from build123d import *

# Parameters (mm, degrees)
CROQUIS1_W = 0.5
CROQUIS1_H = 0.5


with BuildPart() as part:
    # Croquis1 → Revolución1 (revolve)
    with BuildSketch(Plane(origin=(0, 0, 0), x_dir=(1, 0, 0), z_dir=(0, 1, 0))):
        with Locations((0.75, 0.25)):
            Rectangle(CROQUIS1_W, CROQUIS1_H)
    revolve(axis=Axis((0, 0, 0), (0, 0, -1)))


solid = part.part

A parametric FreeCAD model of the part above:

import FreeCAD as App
import Part
import Sketcher
from FreeCAD import Vector

doc = App.newDocument("Part")
body = doc.addObject("PartDesign::Body", "Body")

sketch1 = body.newObject("Sketcher::SketchObject", "Sketch")
sketch1.AttachmentSupport = (doc.getObject("XZ_Plane"), [""])
sketch1.MapMode = "FlatFace"
sketch1.addGeometry([
    Part.LineSegment(Vector(0.5, -0.5, 0), Vector(0.5, 0, 0)),
    Part.LineSegment(Vector(0.5, 0, 0), Vector(1, 0, 0)),
    Part.LineSegment(Vector(1, 0, 0), Vector(1, -0.5, 0)),
    Part.LineSegment(Vector(1, -0.5, 0), Vector(0.5, -0.5, 0)),
], False)
sketch1.addConstraint([
    Sketcher.Constraint("Coincident", 0, 2, 1, 1),
    Sketcher.Constraint("Coincident", 1, 2, 2, 1),
    Sketcher.Constraint("Coincident", 2, 2, 3, 1),
    Sketcher.Constraint("Coincident", 3, 2, 0, 1),
    Sketcher.Constraint("Vertical", 0),
    Sketcher.Constraint("Horizontal", 1),
    Sketcher.Constraint("Vertical", 2),
    Sketcher.Constraint("Horizontal", 3),
    Sketcher.Constraint("PointOnObject", 0, 2, -1),
    Sketcher.Constraint("Equal", 3, 0),
    Sketcher.Constraint("DistanceX", 1, 1, 1, 2, 0.5),
    Sketcher.Constraint("DistanceX", -1, 1, 1, 2, 1.0),
])
revolution = body.newObject("PartDesign::Revolution", "Revolution")
revolution.Profile = sketch1
revolution.ReferenceAxis = (sketch1, ["V_Axis"])
revolution.Angle = 360

doc.recompute()
